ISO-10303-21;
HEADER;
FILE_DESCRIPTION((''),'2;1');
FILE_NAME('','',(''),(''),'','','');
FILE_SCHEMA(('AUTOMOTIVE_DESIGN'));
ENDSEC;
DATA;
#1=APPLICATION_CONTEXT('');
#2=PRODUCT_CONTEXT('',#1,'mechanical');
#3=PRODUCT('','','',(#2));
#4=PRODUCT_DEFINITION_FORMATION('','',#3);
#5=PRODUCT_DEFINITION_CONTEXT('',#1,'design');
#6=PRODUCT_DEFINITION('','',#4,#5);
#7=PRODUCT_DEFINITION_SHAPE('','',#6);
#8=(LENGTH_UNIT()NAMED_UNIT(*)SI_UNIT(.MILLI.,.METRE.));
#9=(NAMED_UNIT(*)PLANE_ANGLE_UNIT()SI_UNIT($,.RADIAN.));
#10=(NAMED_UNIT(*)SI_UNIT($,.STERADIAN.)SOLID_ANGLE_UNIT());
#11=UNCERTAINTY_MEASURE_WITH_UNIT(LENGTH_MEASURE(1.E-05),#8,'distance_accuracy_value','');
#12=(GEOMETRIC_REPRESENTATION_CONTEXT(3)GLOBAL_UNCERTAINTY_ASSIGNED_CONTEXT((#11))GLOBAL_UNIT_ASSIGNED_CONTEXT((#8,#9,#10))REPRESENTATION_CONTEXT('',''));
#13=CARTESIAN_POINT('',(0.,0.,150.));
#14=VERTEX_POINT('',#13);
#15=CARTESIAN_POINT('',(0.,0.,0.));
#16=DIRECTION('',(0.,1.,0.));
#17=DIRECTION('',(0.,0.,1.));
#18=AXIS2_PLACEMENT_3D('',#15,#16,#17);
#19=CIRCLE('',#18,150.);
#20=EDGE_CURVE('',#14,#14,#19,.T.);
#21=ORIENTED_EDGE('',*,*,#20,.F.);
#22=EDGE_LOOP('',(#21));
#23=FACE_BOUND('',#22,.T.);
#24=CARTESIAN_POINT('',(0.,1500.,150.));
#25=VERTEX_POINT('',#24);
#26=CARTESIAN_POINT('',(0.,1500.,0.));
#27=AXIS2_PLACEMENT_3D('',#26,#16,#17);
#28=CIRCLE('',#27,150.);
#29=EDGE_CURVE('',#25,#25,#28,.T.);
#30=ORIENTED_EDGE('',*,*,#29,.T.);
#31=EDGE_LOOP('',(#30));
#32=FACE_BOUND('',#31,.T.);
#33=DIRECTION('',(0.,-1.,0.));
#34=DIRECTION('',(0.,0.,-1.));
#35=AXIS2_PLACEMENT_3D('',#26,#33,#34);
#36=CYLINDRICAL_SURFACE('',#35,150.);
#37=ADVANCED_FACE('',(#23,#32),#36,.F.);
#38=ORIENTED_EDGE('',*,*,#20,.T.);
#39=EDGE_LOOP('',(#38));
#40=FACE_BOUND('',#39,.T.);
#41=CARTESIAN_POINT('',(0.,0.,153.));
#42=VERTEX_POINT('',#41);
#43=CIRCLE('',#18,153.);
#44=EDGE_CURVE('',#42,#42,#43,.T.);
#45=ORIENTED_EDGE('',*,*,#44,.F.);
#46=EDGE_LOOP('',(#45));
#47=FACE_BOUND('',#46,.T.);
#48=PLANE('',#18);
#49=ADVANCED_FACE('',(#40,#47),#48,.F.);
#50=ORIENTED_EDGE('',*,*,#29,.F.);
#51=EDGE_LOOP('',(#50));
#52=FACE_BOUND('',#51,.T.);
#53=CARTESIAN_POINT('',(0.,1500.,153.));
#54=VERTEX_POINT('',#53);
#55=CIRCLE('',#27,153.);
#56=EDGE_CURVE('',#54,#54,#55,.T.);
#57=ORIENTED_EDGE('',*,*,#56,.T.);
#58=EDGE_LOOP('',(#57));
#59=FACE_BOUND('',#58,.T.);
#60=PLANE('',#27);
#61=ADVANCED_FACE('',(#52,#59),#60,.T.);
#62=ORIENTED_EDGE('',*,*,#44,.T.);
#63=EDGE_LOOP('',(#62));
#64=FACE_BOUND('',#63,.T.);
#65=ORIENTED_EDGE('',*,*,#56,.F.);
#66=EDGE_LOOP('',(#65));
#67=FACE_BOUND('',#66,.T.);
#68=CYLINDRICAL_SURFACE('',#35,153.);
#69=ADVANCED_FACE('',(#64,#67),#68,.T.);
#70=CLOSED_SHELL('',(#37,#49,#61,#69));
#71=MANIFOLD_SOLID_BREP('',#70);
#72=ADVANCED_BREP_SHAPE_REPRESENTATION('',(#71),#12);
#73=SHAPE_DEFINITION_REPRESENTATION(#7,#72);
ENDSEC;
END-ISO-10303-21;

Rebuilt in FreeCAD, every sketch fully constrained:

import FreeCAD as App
import Part
import Sketcher
from FreeCAD import Vector

doc = App.newDocument("Part")
params = doc.addObject("Spreadsheet::Sheet", "Params")
for row, (alias, value) in enumerate([
    ("sketch1_diameter", "306 mm"),
    ("sketch1_diameter2", "300 mm"),
    ("pad1_length", "1500 mm"),
], start=1):
    params.set(f"A{row}", alias)
    params.set(f"B{row}", "=" + value)
    params.setAlias(f"B{row}", alias)

body = doc.addObject("PartDesign::Body", "Body")

# Sketch on XZ plane
sketch1 = body.newObject("Sketcher::SketchObject", "Sketch")
sketch1.AttachmentSupport = (doc.getObject("XZ_Plane"), [""])
sketch1.MapMode = "FlatFace"
sketch1.addGeometry(Part.Circle(Vector(0, 0, 0), Vector(0, 0, 1), 153), False)
sketch1.addGeometry(Part.Circle(Vector(0, 0, 0), Vector(0, 0, 1), 150), False)
sketch1.addConstraint(Sketcher.Constraint("Coincident", 0, 3, -1, 1))
sketch1.addConstraint(Sketcher.Constraint("Coincident", 1, 3, -1, 1))
sketch1.addConstraint(Sketcher.Constraint("Diameter", 0, 306.0))
sketch1.addConstraint(Sketcher.Constraint("Diameter", 1, 300.0))
sketch1.setExpression("Constraints[2]", "Params.sketch1_diameter")
sketch1.setExpression("Constraints[3]", "Params.sketch1_diameter2")
pad1 = body.newObject("PartDesign::Pad", "Pad")
pad1.Profile = sketch1
pad1.setExpression("Length", "Params.pad1_length")
pad1.Reversed = True

doc.recompute()
